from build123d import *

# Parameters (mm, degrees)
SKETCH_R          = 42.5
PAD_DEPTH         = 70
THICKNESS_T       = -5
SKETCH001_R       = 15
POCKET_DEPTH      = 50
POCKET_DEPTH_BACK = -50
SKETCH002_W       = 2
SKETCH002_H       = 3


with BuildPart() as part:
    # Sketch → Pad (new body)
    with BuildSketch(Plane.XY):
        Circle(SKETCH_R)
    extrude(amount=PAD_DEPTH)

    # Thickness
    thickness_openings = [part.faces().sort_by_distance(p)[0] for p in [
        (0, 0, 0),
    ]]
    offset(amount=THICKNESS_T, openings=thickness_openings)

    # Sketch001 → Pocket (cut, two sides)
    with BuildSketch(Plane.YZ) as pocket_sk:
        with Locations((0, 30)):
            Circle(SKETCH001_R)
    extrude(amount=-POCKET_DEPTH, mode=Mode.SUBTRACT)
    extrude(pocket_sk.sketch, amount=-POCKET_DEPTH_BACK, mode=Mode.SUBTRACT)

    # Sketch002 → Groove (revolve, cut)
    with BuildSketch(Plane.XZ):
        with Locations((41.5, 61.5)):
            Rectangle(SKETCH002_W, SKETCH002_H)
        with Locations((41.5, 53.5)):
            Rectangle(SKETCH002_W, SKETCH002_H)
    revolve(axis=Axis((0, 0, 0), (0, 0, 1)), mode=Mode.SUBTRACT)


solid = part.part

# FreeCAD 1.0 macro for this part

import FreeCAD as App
import Part
import Sketcher


def faces_at(feature, points):
    """Names of the faces that lie closest to the given points."""
    faces = feature.Shape.Faces
    near = lambda p: min(range(len(faces)), key=lambda i: faces[i].distToShape(Part.Vertex(*p))[0])
    return sorted({f"Face{near(p) + 1}" for p in points})


def add_polygon(sketch, points):
    """Adds a closed chain of lines whose ends are joined by coincident constraints."""
    first, n = sketch.GeometryCount, len(points)
    for a, b in zip(points, points[1:] + points[:1]):
        sketch.addGeometry(Part.LineSegment(App.Vector(*a, 0), App.Vector(*b, 0)), False)
    for i in range(n):
        sketch.addConstraint(Sketcher.Constraint("Coincident", first + i, 2, first + (i + 1) % n, 1))

doc = App.newDocument("Part")
body = doc.addObject("PartDesign::Body", "Body")

# Sketch on XY plane
sketch1 = body.newObject("Sketcher::SketchObject", "Sketch")
sketch1.AttachmentSupport = (doc.getObject("XY_Plane"), [""])
sketch1.MapMode = "FlatFace"
sketch1.addGeometry(Part.Circle(App.Vector(0, 0, 0), App.Vector(0, 0, 1), 42.5), False)
sketch1.addConstraint(Sketcher.Constraint("Coincident", 0, 3, -1, 1))
sketch1.addConstraint(Sketcher.Constraint("Diameter", 0, 85.0))
pad1 = body.newObject("PartDesign::Pad", "Pad")
pad1.Profile = sketch1
pad1.Length = 70
doc.recompute()

thickness = body.newObject("PartDesign::Thickness", "Thickness")
thickness.Base = (pad1, faces_at(pad1, [(0, 0, 0)]))
thickness.Value = 5
thickness.Reversed = True
thickness.Join = "Arc"

# Sketch on YZ plane
sketch2 = body.newObject("Sketcher::SketchObject", "Sketch001")
sketch2.AttachmentSupport = (doc.getObject("YZ_Plane"), [""])
sketch2.MapMode = "FlatFace"
sketch2.addGeometry(Part.Circle(App.Vector(0, 30, 0), App.Vector(0, 0, 1), 15), False)
sketch2.addConstraint(Sketcher.Constraint("PointOnObject", 0, 3, -2))
sketch2.addConstraint(Sketcher.Constraint("Diameter", 0, 30.0))
sketch2.addConstraint(Sketcher.Constraint("DistanceY", -1, 1, 0, 3, 30.0))
pocket1 = body.newObject("PartDesign::Pocket", "Pocket")
pocket1.Profile = sketch2
pocket1.Type = "ThroughAll"
pocket1.Midplane = True

# Sketch on XZ plane
sketch3 = body.newObject("Sketcher::SketchObject", "Sketch002")
sketch3.AttachmentSupport = (doc.getObject("XZ_Plane"), [""])
sketch3.MapMode = "FlatFace"
add_polygon(sketch3, [(40.5, 63), (40.5, 60), (42.5, 60), (42.5, 63)])  # lines 0-3
add_polygon(sketch3, [(40.5, 55), (40.5, 52), (42.5, 52), (42.5, 55)])  # lines 4-7
sketch3.addConstraint(Sketcher.Constraint("Vertical", 0))
sketch3.addConstraint(Sketcher.Constraint("Horizontal", 1))
sketch3.addConstraint(Sketcher.Constraint("Vertical", 2))
sketch3.addConstraint(Sketcher.Constraint("Horizontal", 3))
sketch3.addConstraint(Sketcher.Constraint("Vertical", 4))
sketch3.addConstraint(Sketcher.Constraint("Horizontal", 5))
sketch3.addConstraint(Sketcher.Constraint("Vertical", 6))
sketch3.addConstraint(Sketcher.Constraint("Horizontal", 7))
sketch3.addConstraint(Sketcher.Constraint("Vertical", 3, 2, 4, 2))
sketch3.addConstraint(Sketcher.Constraint("Vertical", 2, 2, 5, 2))
sketch3.addConstraint(Sketcher.Constraint("Equal", 2, 4))
sketch3.addConstraint(Sketcher.Constraint("DistanceX", 1, 1, 1, 2, 2.0))
sketch3.addConstraint(Sketcher.Constraint("DistanceY", 0, 2, 0, 1, 3.0))
sketch3.addConstraint(Sketcher.Constraint("DistanceY", -1, 1, 0, 2, 60.0))
sketch3.addConstraint(Sketcher.Constraint("DistanceY", -1, 1, 4, 2, 52.0))
sketch3.addConstraint(Sketcher.Constraint("DistanceX", -1, 1, 0, 2, 40.5))
groove = body.newObject("PartDesign::Groove", "Groove")
groove.Profile = sketch3
groove.ReferenceAxis = (sketch3, ["V_Axis"])
groove.Angle = 360

doc.recompute()
